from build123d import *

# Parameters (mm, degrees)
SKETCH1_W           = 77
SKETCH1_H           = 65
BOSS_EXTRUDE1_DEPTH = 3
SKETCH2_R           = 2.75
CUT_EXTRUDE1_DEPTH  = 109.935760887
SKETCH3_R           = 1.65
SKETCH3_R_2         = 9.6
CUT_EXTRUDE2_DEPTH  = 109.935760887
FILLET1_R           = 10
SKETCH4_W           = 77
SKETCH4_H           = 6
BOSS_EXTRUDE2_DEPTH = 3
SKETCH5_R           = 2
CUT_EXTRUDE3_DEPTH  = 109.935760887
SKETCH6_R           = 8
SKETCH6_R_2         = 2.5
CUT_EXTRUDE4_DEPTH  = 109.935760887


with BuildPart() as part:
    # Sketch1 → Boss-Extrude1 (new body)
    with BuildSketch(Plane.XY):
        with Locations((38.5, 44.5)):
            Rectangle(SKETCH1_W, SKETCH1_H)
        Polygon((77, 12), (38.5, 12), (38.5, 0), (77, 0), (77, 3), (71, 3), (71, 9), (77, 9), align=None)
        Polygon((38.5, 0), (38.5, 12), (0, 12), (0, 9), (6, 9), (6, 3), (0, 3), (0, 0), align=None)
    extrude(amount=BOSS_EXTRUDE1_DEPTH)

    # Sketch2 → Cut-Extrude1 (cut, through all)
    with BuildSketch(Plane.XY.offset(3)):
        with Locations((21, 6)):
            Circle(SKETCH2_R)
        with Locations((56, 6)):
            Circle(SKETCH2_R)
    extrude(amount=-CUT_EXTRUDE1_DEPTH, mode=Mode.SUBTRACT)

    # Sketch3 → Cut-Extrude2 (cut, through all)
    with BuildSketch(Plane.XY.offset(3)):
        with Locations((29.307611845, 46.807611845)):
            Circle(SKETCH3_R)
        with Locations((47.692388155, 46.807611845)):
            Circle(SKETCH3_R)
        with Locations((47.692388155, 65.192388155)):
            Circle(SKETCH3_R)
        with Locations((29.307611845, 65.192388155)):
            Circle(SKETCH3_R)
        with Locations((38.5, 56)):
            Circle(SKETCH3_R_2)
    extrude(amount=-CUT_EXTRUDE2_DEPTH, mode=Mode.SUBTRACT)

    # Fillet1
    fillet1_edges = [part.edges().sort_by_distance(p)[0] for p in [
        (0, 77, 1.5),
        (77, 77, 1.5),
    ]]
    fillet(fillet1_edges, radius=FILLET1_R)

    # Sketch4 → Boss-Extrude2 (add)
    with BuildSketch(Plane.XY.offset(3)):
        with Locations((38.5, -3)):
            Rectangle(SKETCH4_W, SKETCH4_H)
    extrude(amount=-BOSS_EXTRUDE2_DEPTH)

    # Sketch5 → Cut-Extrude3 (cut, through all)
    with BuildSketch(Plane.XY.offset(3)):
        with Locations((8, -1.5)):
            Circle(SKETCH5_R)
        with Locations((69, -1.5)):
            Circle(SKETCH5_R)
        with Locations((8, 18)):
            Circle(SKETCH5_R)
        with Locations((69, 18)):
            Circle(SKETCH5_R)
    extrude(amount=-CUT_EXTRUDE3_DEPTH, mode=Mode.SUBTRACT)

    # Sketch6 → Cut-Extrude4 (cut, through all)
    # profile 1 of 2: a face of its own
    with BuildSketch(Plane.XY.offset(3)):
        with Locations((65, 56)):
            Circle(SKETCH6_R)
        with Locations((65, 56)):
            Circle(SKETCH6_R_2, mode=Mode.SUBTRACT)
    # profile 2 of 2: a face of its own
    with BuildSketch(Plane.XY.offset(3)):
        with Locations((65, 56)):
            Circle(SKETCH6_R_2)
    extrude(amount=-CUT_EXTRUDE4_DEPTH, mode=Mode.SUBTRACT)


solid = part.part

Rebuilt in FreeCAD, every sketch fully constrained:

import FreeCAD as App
import Part
import Sketcher

V = App.Vector
Q = App.Units.Quantity


def edges_at(feature, points):
    """Names of the edges that pass closest to the given points."""
    edges = feature.Shape.Edges
    near = lambda p: min(range(len(edges)), key=lambda i: edges[i].distToShape(Part.Vertex(*p))[0])
    return sorted({f"Edge{near(p) + 1}" for p in points})


def add_polygon(sketch, points):
    """Adds a closed chain of lines whose ends are joined by coincident constraints."""
    first, n = sketch.GeometryCount, len(points)
    for a, b in zip(points, points[1:] + points[:1]):
        sketch.addGeometry(Part.LineSegment(App.Vector(*a, 0), App.Vector(*b, 0)), False)
    for i in range(n):
        sketch.addConstraint(Sketcher.Constraint("Coincident", first + i, 2, first + (i + 1) % n, 1))

doc = App.newDocument("Part")
body = doc.addObject("PartDesign::Body", "Body")

# Sketch on XY plane
sketch1 = body.newObject("Sketcher::SketchObject", "Sketch")
sketch1.AttachmentSupport = (doc.getObject("XY_Plane"), [""])
sketch1.MapMode = "FlatFace"
add_polygon(sketch1, [(0, 77), (0, 9), (6, 9), (6, 3), (0, 3), (0, 0), (77, 0), (77, 3), (71, 3), (71, 9), (77, 9), (77, 77)])  # lines 0-11
sketch1.addConstraint([
    Sketcher.Constraint("Vertical", 0),
    Sketcher.Constraint("Horizontal", 1),
    Sketcher.Constraint("Vertical", 2),
    Sketcher.Constraint("Horizontal", 3),
    Sketcher.Constraint("Vertical", 4),
    Sketcher.Constraint("Horizontal", 5),
    Sketcher.Constraint("Vertical", 6),
    Sketcher.Constraint("Horizontal", 7),
    Sketcher.Constraint("Vertical", 8),
    Sketcher.Constraint("Horizontal", 9),
    Sketcher.Constraint("Vertical", 10),
    Sketcher.Constraint("Horizontal", 11),
    Sketcher.Constraint("Coincident", 4, 2, -1, 1),
    Sketcher.Constraint("PointOnObject", 0, 2, -2),
    Sketcher.Constraint("Horizontal", 3, 2, 6, 2),
    Sketcher.Constraint("Horizontal", 1, 2, 8, 2),
    Sketcher.Constraint("Vertical", 6, 2, 9, 2),
    Sketcher.Constraint("Equal", 3, 7),
    Sketcher.Constraint("Equal", 9, 2),
    Sketcher.Constraint("DistanceX", 1, 1, 1, 2, Q("6 mm")),
    Sketcher.Constraint("DistanceX", 5, 1, 5, 2, Q("77 mm")),
    Sketcher.Constraint("DistanceY", 0, 2, 0, 1, Q("68 mm")),
    Sketcher.Constraint("DistanceY", 4, 2, 4, 1, Q("3 mm")),
])
pad1 = body.newObject("PartDesign::Pad", "Pad")
pad1.Profile = sketch1
pad1.Length = 3

# Sketch on XY plane
sketch2 = body.newObject("Sketcher::SketchObject", "Sketch001")
sketch2.AttachmentSupport = (doc.getObject("XY_Plane"), [""])
sketch2.MapMode = "FlatFace"
sketch2.AttachmentOffset = App.Placement(V(0, 0, 3), App.Rotation())
sketch2.addGeometry([
    Part.Circle(V(21, 6, 0), V(0, 0, 1), 2.75),
    Part.Circle(V(56, 6, 0), V(0, 0, 1), 2.75),
], False)
sketch2.addConstraint([
    Sketcher.Constraint("Equal", 0, 1),
    Sketcher.Constraint("Horizontal", 0, 3, 1, 3),
    Sketcher.Constraint("Diameter", 0, Q("5.5 mm")),
    Sketcher.Constraint("DistanceX", -1, 1, 0, 3, Q("21 mm")),
    Sketcher.Constraint("DistanceY", -1, 1, 0, 3, Q("6 mm")),
    Sketcher.Constraint("DistanceX", -1, 1, 1, 3, Q("56 mm")),
])
pocket1 = body.newObject("PartDesign::Pocket", "Pocket")
pocket1.Profile = sketch2
pocket1.Type = "ThroughAll"

# Sketch on XY plane
sketch3 = body.newObject("Sketcher::SketchObject", "Sketch002")
sketch3.AttachmentSupport = (doc.getObject("XY_Plane"), [""])
sketch3.MapMode = "FlatFace"
sketch3.AttachmentOffset = App.Placement(V(0, 0, 3), App.Rotation())
sketch3.addGeometry([
    Part.Circle(V(29.307612, 46.807612, 0), V(0, 0, 1), 1.65),  # 0
    Part.Circle(V(47.692388, 46.807612, 0), V(0, 0, 1), 1.65),  # 1
    Part.Circle(V(47.692388, 65.192388, 0), V(0, 0, 1), 1.65),  # 2
    Part.Circle(V(29.307612, 65.192388, 0), V(0, 0, 1), 1.65),  # 3
    Part.Circle(V(38.5, 56, 0), V(0, 0, 1), 9.6),  # 4
], False)
sketch3.addConstraint([
    Sketcher.Constraint("Equal", 0, 1),
    Sketcher.Constraint("Equal", 1, 2),
    Sketcher.Constraint("Equal", 2, 3),
    Sketcher.Constraint("Horizontal", 0, 3, 1, 3),
    Sketcher.Constraint("Horizontal", 2, 3, 3, 3),
    Sketcher.Constraint("Vertical", 1, 3, 2, 3),
    Sketcher.Constraint("Vertical", 0, 3, 3, 3),
    Sketcher.Constraint("Diameter", 0, Q("3.3 mm")),
    Sketcher.Constraint("Diameter", 4, Q("19.2 mm")),
    Sketcher.Constraint("DistanceY", -1, 1, 4, 3, Q("56 mm")),
    Sketcher.Constraint("DistanceX", -1, 1, 4, 3, Q("38.5 mm")),
    Sketcher.Constraint("DistanceX", -1, 1, 0, 3, Q("29.307612 mm")),
    Sketcher.Constraint("DistanceY", -1, 1, 0, 3, Q("46.807612 mm")),
    Sketcher.Constraint("DistanceX", -1, 1, 1, 3, Q("47.692388 mm")),
    Sketcher.Constraint("DistanceY", -1, 1, 2, 3, Q("65.192388 mm")),
])
pocket2 = body.newObject("PartDesign::Pocket", "Pocket001")
pocket2.Profile = sketch3
pocket2.Type = "ThroughAll"
doc.recompute()

fillet = body.newObject("PartDesign::Fillet", "Fillet")
fillet.Base = (pocket2, edges_at(pocket2, [(0, 77, 1.5), (77, 77, 1.5)]))
fillet.Radius = 10

# Sketch on XY plane
sketch4 = body.newObject("Sketcher::SketchObject", "Sketch003")
sketch4.AttachmentSupport = (doc.getObject("XY_Plane"), [""])
sketch4.MapMode = "FlatFace"
sketch4.AttachmentOffset = App.Placement(V(0, 0, 3), App.Rotation())
add_polygon(sketch4, [(0, 0), (0, -6), (77, -6), (77, 0)])  # lines 0-3
sketch4.addConstraint([
    Sketcher.Constraint("Vertical", 0),
    Sketcher.Constraint("Horizontal", 1),
    Sketcher.Constraint("Vertical", 2),
    Sketcher.Constraint("Horizontal", 3),
    Sketcher.Constraint("Coincident", 3, 2, -1, 1),
    Sketcher.Constraint("DistanceX", 1, 1, 1, 2, Q("77 mm")),
    Sketcher.Constraint("DistanceY", 0, 2, 0, 1, Q("6 mm")),
])
pad2 = body.newObject("PartDesign::Pad", "Pad001")
pad2.Profile = sketch4
pad2.Length = 3
pad2.Reversed = True

# Sketch on XY plane
sketch5 = body.newObject("Sketcher::SketchObject", "Sketch004")
sketch5.AttachmentSupport = (doc.getObject("XY_Plane"), [""])
sketch5.MapMode = "FlatFace"
sketch5.AttachmentOffset = App.Placement(V(0, 0, 3), App.Rotation())
sketch5.addGeometry([
    Part.Circle(V(8, -1.5, 0), V(0, 0, 1), 2),
    Part.Circle(V(69, -1.5, 0), V(0, 0, 1), 2),
    Part.Circle(V(8, 18, 0), V(0, 0, 1), 2),
    Part.Circle(V(69, 18, 0), V(0, 0, 1), 2),
], False)
sketch5.addConstraint([
    Sketcher.Constraint("Equal", 0, 1),
    Sketcher.Constraint("Equal", 1, 2),
    Sketcher.Constraint("Equal", 2, 3),
    Sketcher.Constraint("Horizontal", 0, 3, 1, 3),
    Sketcher.Constraint("Horizontal", 2, 3, 3, 3),
    Sketcher.Constraint("Vertical", 0, 3, 2, 3),
    Sketcher.Constraint("Vertical", 1, 3, 3, 3),
    Sketcher.Constraint("Diameter", 0, Q("4 mm")),
    Sketcher.Constraint("DistanceX", -1, 1, 0, 3, Q("8 mm")),
    Sketcher.Constraint("DistanceX", -1, 1, 1, 3, Q("69 mm")),
    Sketcher.Constraint("DistanceY", -1, 1, 2, 3, Q("18 mm")),
    Sketcher.Constraint("DistanceY", 0, 3, -1, 1, Q("1.5 mm")),
])
pocket3 = body.newObject("PartDesign::Pocket", "Pocket002")
pocket3.Profile = sketch5
pocket3.Type = "ThroughAll"

# Sketch on XY plane
sketch6 = body.newObject("Sketcher::SketchObject", "Sketch005")
sketch6.AttachmentSupport = (doc.getObject("XY_Plane"), [""])
sketch6.MapMode = "FlatFace"
sketch6.AttachmentOffset = App.Placement(V(0, 0, 3), App.Rotation())
sketch6.addGeometry(Part.Circle(V(65, 56, 0), V(0, 0, 1), 8), False)
sketch6.addConstraint([
    Sketcher.Constraint("Diameter", 0, Q("16 mm")),
    Sketcher.Constraint("DistanceX", -1, 1, 0, 3, Q("65 mm")),
    Sketcher.Constraint("DistanceY", -1, 1, 0, 3, Q("56 mm")),
])
pocket4 = body.newObject("PartDesign::Pocket", "Pocket003")
pocket4.Profile = sketch6
pocket4.Length = 109.935761

doc.recompute()
